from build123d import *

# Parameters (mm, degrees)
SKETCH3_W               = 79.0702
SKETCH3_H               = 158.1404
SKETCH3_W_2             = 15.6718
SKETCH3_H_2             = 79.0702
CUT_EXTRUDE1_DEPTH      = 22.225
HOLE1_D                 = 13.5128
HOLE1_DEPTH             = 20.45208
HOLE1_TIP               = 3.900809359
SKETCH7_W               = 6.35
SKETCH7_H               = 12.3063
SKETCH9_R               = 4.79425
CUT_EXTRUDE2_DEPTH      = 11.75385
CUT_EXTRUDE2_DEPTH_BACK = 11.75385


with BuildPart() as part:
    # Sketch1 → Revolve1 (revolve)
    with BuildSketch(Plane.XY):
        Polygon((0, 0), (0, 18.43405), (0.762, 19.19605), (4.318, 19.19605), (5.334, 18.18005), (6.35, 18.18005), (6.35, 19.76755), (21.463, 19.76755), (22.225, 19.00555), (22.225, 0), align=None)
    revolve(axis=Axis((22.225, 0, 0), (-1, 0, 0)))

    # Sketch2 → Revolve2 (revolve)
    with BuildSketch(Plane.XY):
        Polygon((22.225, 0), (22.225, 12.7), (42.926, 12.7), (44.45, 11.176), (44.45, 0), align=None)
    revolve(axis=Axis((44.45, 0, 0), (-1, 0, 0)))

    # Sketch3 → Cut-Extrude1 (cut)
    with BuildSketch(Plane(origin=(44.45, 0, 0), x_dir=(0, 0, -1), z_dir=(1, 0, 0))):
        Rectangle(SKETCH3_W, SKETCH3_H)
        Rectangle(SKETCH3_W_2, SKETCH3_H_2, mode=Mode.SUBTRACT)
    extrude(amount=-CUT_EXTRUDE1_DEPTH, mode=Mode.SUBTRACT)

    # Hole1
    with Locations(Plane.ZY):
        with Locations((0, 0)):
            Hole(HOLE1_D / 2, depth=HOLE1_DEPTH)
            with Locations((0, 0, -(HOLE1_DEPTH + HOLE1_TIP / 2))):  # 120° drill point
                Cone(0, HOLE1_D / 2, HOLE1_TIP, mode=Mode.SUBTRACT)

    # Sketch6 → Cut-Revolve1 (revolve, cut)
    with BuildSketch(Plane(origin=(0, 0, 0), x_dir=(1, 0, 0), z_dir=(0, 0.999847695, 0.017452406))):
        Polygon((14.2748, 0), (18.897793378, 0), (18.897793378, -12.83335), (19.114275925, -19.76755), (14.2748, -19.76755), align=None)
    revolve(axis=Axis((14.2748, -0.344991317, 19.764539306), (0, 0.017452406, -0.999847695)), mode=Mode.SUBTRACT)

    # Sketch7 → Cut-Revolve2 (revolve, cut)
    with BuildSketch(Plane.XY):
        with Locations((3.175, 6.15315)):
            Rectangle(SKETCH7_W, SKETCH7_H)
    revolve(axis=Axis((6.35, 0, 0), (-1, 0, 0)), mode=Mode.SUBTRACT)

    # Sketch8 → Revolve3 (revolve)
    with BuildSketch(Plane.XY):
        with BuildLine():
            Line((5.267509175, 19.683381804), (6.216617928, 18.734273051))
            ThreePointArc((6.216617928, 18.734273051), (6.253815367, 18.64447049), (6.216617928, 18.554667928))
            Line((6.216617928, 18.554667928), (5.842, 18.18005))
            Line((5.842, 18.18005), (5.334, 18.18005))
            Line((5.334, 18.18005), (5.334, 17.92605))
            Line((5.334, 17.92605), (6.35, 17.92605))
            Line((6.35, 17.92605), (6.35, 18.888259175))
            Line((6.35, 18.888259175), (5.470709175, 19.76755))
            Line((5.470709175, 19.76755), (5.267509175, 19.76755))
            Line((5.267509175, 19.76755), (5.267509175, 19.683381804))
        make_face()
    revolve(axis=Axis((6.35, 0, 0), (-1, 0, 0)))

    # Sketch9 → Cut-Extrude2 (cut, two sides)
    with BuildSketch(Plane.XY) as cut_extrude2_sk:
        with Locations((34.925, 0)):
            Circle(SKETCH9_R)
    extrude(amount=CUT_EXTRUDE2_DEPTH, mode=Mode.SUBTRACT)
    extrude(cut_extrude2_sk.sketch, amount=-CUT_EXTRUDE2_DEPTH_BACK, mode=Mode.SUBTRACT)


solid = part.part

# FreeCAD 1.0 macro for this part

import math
import FreeCAD as App
import Part
import Sketcher

V = App.Vector
Q = App.Units.Quantity


def add_polygon(sketch, points):
    """Adds a closed chain of lines whose ends are joined by coincident constraints."""
    first, n = sketch.GeometryCount, len(points)
    for a, b in zip(points, points[1:] + points[:1]):
        sketch.addGeometry(Part.LineSegment(App.Vector(*a, 0), App.Vector(*b, 0)), False)
    for i in range(n):
        sketch.addConstraint(Sketcher.Constraint("Coincident", first + i, 2, first + (i + 1) % n, 1))

doc = App.newDocument("Part")
body = doc.addObject("PartDesign::Body", "Body")

# Sketch on XY plane
sketch1 = doc.addObject("Sketcher::SketchObject", "Sketch")
body.addObject(sketch1)
sketch1.AttachmentSupport = (doc.XY_Plane, [""])
sketch1.MapMode = "FlatFace"
add_polygon(sketch1, [(0, 18.43405), (0, 0), (22.225, 0), (22.225, 19.00555), (21.463, 19.76755), (6.35, 19.76755), (6.35, 18.18005), (5.334, 18.18005), (4.318, 19.19605), (0.762, 19.19605)])  # lines 0-9
sketch1.addConstraint(Sketcher.Constraint("Vertical", 0))
sketch1.addConstraint(Sketcher.Constraint("Horizontal", 1))
sketch1.addConstraint(Sketcher.Constraint("Vertical", 2))
sketch1.addConstraint(Sketcher.Constraint("Horizontal", 4))
sketch1.addConstraint(Sketcher.Constraint("Vertical", 5))
sketch1.addConstraint(Sketcher.Constraint("Horizontal", 6))
sketch1.addConstraint(Sketcher.Constraint("Horizontal", 8))
sketch1.addConstraint(Sketcher.Constraint("Coincident", 0, 2, -1, 1))
sketch1.addConstraint(Sketcher.Constraint("Parallel", 3, 7))
sketch1.addConstraint(Sketcher.Constraint("Perpendicular", 7, 9))
sketch1.addConstraint(Sketcher.Constraint("Equal", 3, 9))
sketch1.addConstraint(Sketcher.Constraint("Angle", 3, Q("135 deg")))
sketch1.addConstraint(Sketcher.Constraint("DistanceX", 6, 2, 6, 1, Q("0.04 in")))
sketch1.addConstraint(Sketcher.Constraint("DistanceX", 8, 2, 8, 1, Q("0.14 in")))
sketch1.addConstraint(Sketcher.Constraint("DistanceX", 1, 1, 1, 2, Q("0.875 in")))
sketch1.addConstraint(Sketcher.Constraint("DistanceX", 4, 2, 4, 1, Q("0.595 in")))
sketch1.addConstraint(Sketcher.Constraint("DistanceY", 5, 2, 5, 1, Q("0.0625 in")))
sketch1.addConstraint(Sketcher.Constraint("DistanceX", -1, 1, 4, 2, Q("0.25 in")))
sketch1.addConstraint(Sketcher.Constraint("DistanceY", 0, 2, 0, 1, Q("18.43405 mm")))
revolution = doc.addObject("PartDesign::Revolution", "Revolution")
body.addObject(revolution)
revolution.Profile = sketch1
revolution.ReferenceAxis = (sketch1, ["H_Axis"])
revolution.Angle = 360

# Sketch on XY plane
sketch2 = doc.addObject("Sketcher::SketchObject", "Sketch001")
body.addObject(sketch2)
sketch2.AttachmentSupport = (doc.XY_Plane, [""])
sketch2.MapMode = "FlatFace"
add_polygon(sketch2, [(22.225, 12.7), (22.225, 0), (44.45, 0), (44.45, 11.176), (42.926, 12.7)])  # lines 0-4
sketch2.addConstraint(Sketcher.Constraint("Vertical", 0))
sketch2.addConstraint(Sketcher.Constraint("Horizontal", 1))
sketch2.addConstraint(Sketcher.Constraint("Vertical", 2))
sketch2.addConstraint(Sketcher.Constraint("Horizontal", 4))
sketch2.addConstraint(Sketcher.Constraint("PointOnObject", 0, 2, -1))
sketch2.addConstraint(Sketcher.Constraint("DistanceY", 0, 2, 0, 1, Q("0.5 in")))
sketch2.addConstraint(Sketcher.Constraint("Angle", 3, Q("135 deg")))
sketch2.addConstraint(Sketcher.Constraint("DistanceY", 2, 1, 2, 2, Q("0.44 in")))
sketch2.addConstraint(Sketcher.Constraint("DistanceX", 1, 1, 1, 2, Q("0.875 in")))
sketch2.addConstraint(Sketcher.Constraint("DistanceX", -1, 1, 1, 2, Q("1.75 in")))
revolution2 = doc.addObject("PartDesign::Revolution", "Revolution001")
body.addObject(revolution2)
revolution2.Profile = sketch2
revolution2.ReferenceAxis = (sketch2, ["H_Axis"])
revolution2.Angle = 360

# Sketch on YZ plane
sketch3 = doc.addObject("Sketcher::SketchObject", "Sketch002")
body.addObject(sketch3)
sketch3.AttachmentSupport = (doc.YZ_Plane, [""])
sketch3.MapMode = "FlatFace"
sketch3.AttachmentOffset = App.Placement(V(0, 0, 1.75 * 25.4), App.Rotation())
add_polygon(sketch3, [(79.0702, 39.5351), (-79.0702, 39.5351), (-79.0702, -39.5351), (79.0702, -39.5351)])  # lines 0-3
add_polygon(sketch3, [(-39.5351, -7.8359), (-39.5351, 7.8359), (39.5351, 7.8359), (39.5351, -7.8359)])  # lines 4-7
sketch3.addConstraint(Sketcher.Constraint("Horizontal", 0))
sketch3.addConstraint(Sketcher.Constraint("Vertical", 1))
sketch3.addConstraint(Sketcher.Constraint("Horizontal", 2))
sketch3.addConstraint(Sketcher.Constraint("Vertical", 3))
sketch3.addConstraint(Sketcher.Constraint("Vertical", 4))
sketch3.addConstraint(Sketcher.Constraint("Horizontal", 5))
sketch3.addConstraint(Sketcher.Constraint("Vertical", 6))
sketch3.addConstraint(Sketcher.Constraint("Horizontal", 7))
sketch3.addConstraint(Sketcher.Constraint("Symmetric", 0, 2, 2, 2, -1, 1))
sketch3.addConstraint(Sketcher.Constraint("Symmetric", 4, 2, 6, 2, -1, 1))
sketch3.addConstraint(Sketcher.Constraint("Equal", 7, 1))
sketch3.addConstraint(Sketcher.Constraint("DistanceX", 0, 2, 0, 1, Q("6.226 in")))
sketch3.addConstraint(Sketcher.Constraint("DistanceX", 5, 1, 5, 2, Q("3.113 in")))
sketch3.addConstraint(Sketcher.Constraint("DistanceY", 4, 1, 4, 2, Q("0.617 in")))
pocket1 = doc.addObject("PartDesign::Pocket", "Pocket")
body.addObject(pocket1)
pocket1.Profile = sketch3
pocket1.Length = Q("0.875 in")

# Sketch on YZ plane
sketch4 = doc.addObject("Sketcher::SketchObject", "Sketch003")
body.addObject(sketch4)
sketch4.AttachmentSupport = (doc.YZ_Plane, [""])
sketch4.MapMode = "FlatFace"
sketch4.addGeometry(Part.Circle(V(0, 0, 0), V(0, 0, 1), 6.7564), False)
sketch4.addConstraint(Sketcher.Constraint("Coincident", 0, 3, -1, 1))
sketch4.addConstraint(Sketcher.Constraint("Diameter", 0, Q("0.532 in")))
doc.recompute()
hole = doc.addObject("PartDesign::Hole", "Hole")
body.addObject(hole)
hole.Profile = sketch4
hole.ThreadType = "None"
hole.Diameter = Q("0.532 in")
hole.DepthType = "Dimension"
hole.Depth = Q("0.8052 in")
hole.DrillPoint = "Angled"
hole.DrillPointAngle = 120
hole.Reversed = True

# Sketch on an angled plane
sketch5 = doc.addObject("Sketcher::SketchObject", "Sketch004")
body.addObject(sketch5)
sketch5.Placement = App.Placement(V(0, 0, 0), App.Rotation(V(1, 0, 0), V(0, 0.017452406, -0.999847695), V(0, 0.999847695, 0.017452406), "ZXY"))
add_polygon(sketch5, [(18.897793, 0), (14.2748, 0), (14.2748, -19.76755), (19.114276, -19.76755), (18.897793, -12.83335)])  # lines 0-4
sketch5.addGeometry(Part.LineSegment(V(14.2748, -19.76755, 0), V(14.2748, 0, 0)), True)  # axis
sketch5.addConstraint(Sketcher.Constraint("Horizontal", 0))
sketch5.addConstraint(Sketcher.Constraint("Vertical", 1))
sketch5.addConstraint(Sketcher.Constraint("Horizontal", 2))
sketch5.addConstraint(Sketcher.Constraint("Vertical", 4))
sketch5.addConstraint(Sketcher.Constraint("Vertical", 5))
sketch5.addConstraint(Sketcher.Constraint("Coincident", 5, 1, 1, 2))
sketch5.addConstraint(Sketcher.Constraint("PointOnObject", 0, 2, -1))
sketch5.addConstraint(Sketcher.Constraint("PointOnObject", 5, 2, -1))
sketch5.addConstraint(Sketcher.Constraint("DistanceX", -1, 1, 0, 2, Q("0.562 in")))
sketch5.addConstraint(Sketcher.Constraint("DistanceY", 2, 2, 3, 2, Q("0.273 in")))
sketch5.addConstraint(Sketcher.Constraint("DistanceY", 1, 2, 1, 1, Q("19.76755 mm")))
sketch5.addConstraint(Sketcher.Constraint("Distance", 3, Q("6.937578 mm")))
sketch5.addConstraint(Sketcher.Constraint("DistanceX", 0, 2, 0, 1, Q("4.622993 mm")))
groove = doc.addObject("PartDesign::Groove", "Groove")
body.addObject(groove)
groove.Profile = sketch5
groove.ReferenceAxis = (sketch5, ["Axis0"])
groove.Angle = 360

# Sketch on XY plane
sketch6 = doc.addObject("Sketcher::SketchObject", "Sketch005")
body.addObject(sketch6)
sketch6.AttachmentSupport = (doc.XY_Plane, [""])
sketch6.MapMode = "FlatFace"
add_polygon(sketch6, [(0, 12.3063), (0, 0), (6.35, 0), (6.35, 12.3063)])  # lines 0-3
sketch6.addConstraint(Sketcher.Constraint("Vertical", 0))
sketch6.addConstraint(Sketcher.Constraint("Horizontal", 1))
sketch6.addConstraint(Sketcher.Constraint("Vertical", 2))
sketch6.addConstraint(Sketcher.Constraint("Horizontal", 3))
sketch6.addConstraint(Sketcher.Constraint("Coincident", 0, 2, -1, 1))
sketch6.addConstraint(Sketcher.Constraint("DistanceX", 1, 1, 1, 2, Q("0.25 in")))
sketch6.addConstraint(Sketcher.Constraint("DistanceY", 0, 2, 0, 1, Q("0.4845 in")))
groove2 = doc.addObject("PartDesign::Groove", "Groove001")
body.addObject(groove2)
groove2.Profile = sketch6
groove2.ReferenceAxis = (sketch6, ["H_Axis"])
groove2.Angle = 360

# Sketch on XY plane
sketch7 = doc.addObject("Sketcher::SketchObject", "Sketch006")
body.addObject(sketch7)
sketch7.AttachmentSupport = (doc.XY_Plane, [""])
sketch7.MapMode = "FlatFace"
sketch7.addGeometry(Part.LineSegment(V(5.267509, 19.683382, 0), V(6.216618, 18.734273, 0)), False)
sketch7.addGeometry(Part.ArcOfCircle(Part.Circle(V(6.126815, 18.64447, 0), V(0, 0, 1), 0.127), math.radians(-45), math.radians(45)), False)
sketch7.addGeometry(Part.LineSegment(V(6.216618, 18.554668, 0), V(5.842, 18.18005, 0)), False)
sketch7.addGeometry(Part.LineSegment(V(5.842, 18.18005, 0), V(5.334, 18.18005, 0)), False)
sketch7.addGeometry(Part.LineSegment(V(5.334, 18.18005, 0), V(5.334, 17.92605, 0)), False)
sketch7.addGeometry(Part.LineSegment(V(5.334, 17.92605, 0), V(6.35, 17.92605, 0)), False)
sketch7.addGeometry(Part.LineSegment(V(6.35, 17.92605, 0), V(6.35, 18.888259, 0)), False)
sketch7.addGeometry(Part.LineSegment(V(6.35, 18.888259, 0), V(5.470709, 19.76755, 0)), False)
sketch7.addGeometry(Part.LineSegment(V(5.470709, 19.76755, 0), V(5.267509, 19.76755, 0)), False)
sketch7.addGeometry(Part.LineSegment(V(5.267509, 19.76755, 0), V(5.267509, 19.683382, 0)), False)
sketch7.addConstraint(Sketcher.Constraint("Tangent", 0, 2, 1, 2))
sketch7.addConstraint(Sketcher.Constraint("Tangent", 1, 1, 2, 1))
sketch7.addConstraint(Sketcher.Constraint("Coincident", 2, 2, 3, 1))
sketch7.addConstraint(Sketcher.Constraint("Coincident", 3, 2, 4, 1))
sketch7.addConstraint(Sketcher.Constraint("Coincident", 4, 2, 5, 1))
sketch7.addConstraint(Sketcher.Constraint("Coincident", 5, 2, 6, 1))
sketch7.addConstraint(Sketcher.Constraint("Coincident", 6, 2, 7, 1))
sketch7.addConstraint(Sketcher.Constraint("Coincident", 7, 2, 8, 1))
sketch7.addConstraint(Sketcher.Constraint("Coincident", 8, 2, 9, 1))
sketch7.addConstraint(Sketcher.Constraint("Coincident", 9, 2, 0, 1))
sketch7.addConstraint(Sketcher.Constraint("Horizontal", 3))
sketch7.addConstraint(Sketcher.Constraint("Vertical", 4))
sketch7.addConstraint(Sketcher.Constraint("Horizontal", 5))
sketch7.addConstraint(Sketcher.Constraint("Vertical", 6))
sketch7.addConstraint(Sketcher.Constraint("Horizontal", 8))
sketch7.addConstraint(Sketcher.Constraint("Vertical", 9))
sketch7.addConstraint(Sketcher.Constraint("Perpendicular", 0, 2))
sketch7.addConstraint(Sketcher.Constraint("Perpendicular", 2, 7))
sketch7.addConstraint(Sketcher.Constraint("Vertical", 0, 2, 1, 1))
sketch7.addConstraint(Sketcher.Constraint("Radius", 1, Q("0.005 in")))
sketch7.addConstraint(Sketcher.Constraint("DistanceX", 3, 2, 3, 1, Q("0.02 in")))
sketch7.addConstraint(Sketcher.Constraint("DistanceX", 5, 1, 5, 2, Q("0.04 in")))
sketch7.addConstraint(Sketcher.Constraint("DistanceY", 4, 2, 4, 1, Q("0.01 in")))
sketch7.addConstraint(Sketcher.Constraint("DistanceX", 8, 2, 8, 1, Q("0.008 in")))
sketch7.addConstraint(Sketcher.Constraint("DistanceX", -1, 1, 2, 2, Q("0.23 in")))
sketch7.addConstraint(Sketcher.Constraint("DistanceY", 3, 2, 7, 2, Q("0.0625 in")))
sketch7.addConstraint(Sketcher.Constraint("DistanceY", 6, 1, 6, 2, Q("0.962209 mm")))
sketch7.addConstraint(Sketcher.Constraint("DistanceY", 9, 2, 9, 1, Q("0.084168 mm")))
sketch7.addConstraint(Sketcher.Constraint("DistanceY", -1, 1, 1, 3, Q("18.64447 mm")))
revolution3 = doc.addObject("PartDesign::Revolution", "Revolution002")
body.addObject(revolution3)
revolution3.Profile = sketch7
revolution3.ReferenceAxis = (sketch7, ["H_Axis"])
revolution3.Angle = 360

# Sketch on XY plane
sketch8 = doc.addObject("Sketcher::SketchObject", "Sketch007")
body.addObject(sketch8)
sketch8.AttachmentSupport = (doc.XY_Plane, [""])
sketch8.MapMode = "FlatFace"
sketch8.addGeometry(Part.Circle(V(34.925, 0, 0), V(0, 0, 1), 4.79425), False)
sketch8.addConstraint(Sketcher.Constraint("PointOnObject", 0, 3, -1))
sketch8.addConstraint(Sketcher.Constraint("Diameter", 0, Q("0.3775 in")))
sketch8.addConstraint(Sketcher.Constraint("DistanceX", -1, 1, 0, 3, Q("1.375 in")))
pocket2 = doc.addObject("PartDesign::Pocket", "Pocket001")
body.addObject(pocket2)
pocket2.Profile = sketch8
pocket2.Type = "ThroughAll"
pocket2.Midplane = True

doc.recompute()
